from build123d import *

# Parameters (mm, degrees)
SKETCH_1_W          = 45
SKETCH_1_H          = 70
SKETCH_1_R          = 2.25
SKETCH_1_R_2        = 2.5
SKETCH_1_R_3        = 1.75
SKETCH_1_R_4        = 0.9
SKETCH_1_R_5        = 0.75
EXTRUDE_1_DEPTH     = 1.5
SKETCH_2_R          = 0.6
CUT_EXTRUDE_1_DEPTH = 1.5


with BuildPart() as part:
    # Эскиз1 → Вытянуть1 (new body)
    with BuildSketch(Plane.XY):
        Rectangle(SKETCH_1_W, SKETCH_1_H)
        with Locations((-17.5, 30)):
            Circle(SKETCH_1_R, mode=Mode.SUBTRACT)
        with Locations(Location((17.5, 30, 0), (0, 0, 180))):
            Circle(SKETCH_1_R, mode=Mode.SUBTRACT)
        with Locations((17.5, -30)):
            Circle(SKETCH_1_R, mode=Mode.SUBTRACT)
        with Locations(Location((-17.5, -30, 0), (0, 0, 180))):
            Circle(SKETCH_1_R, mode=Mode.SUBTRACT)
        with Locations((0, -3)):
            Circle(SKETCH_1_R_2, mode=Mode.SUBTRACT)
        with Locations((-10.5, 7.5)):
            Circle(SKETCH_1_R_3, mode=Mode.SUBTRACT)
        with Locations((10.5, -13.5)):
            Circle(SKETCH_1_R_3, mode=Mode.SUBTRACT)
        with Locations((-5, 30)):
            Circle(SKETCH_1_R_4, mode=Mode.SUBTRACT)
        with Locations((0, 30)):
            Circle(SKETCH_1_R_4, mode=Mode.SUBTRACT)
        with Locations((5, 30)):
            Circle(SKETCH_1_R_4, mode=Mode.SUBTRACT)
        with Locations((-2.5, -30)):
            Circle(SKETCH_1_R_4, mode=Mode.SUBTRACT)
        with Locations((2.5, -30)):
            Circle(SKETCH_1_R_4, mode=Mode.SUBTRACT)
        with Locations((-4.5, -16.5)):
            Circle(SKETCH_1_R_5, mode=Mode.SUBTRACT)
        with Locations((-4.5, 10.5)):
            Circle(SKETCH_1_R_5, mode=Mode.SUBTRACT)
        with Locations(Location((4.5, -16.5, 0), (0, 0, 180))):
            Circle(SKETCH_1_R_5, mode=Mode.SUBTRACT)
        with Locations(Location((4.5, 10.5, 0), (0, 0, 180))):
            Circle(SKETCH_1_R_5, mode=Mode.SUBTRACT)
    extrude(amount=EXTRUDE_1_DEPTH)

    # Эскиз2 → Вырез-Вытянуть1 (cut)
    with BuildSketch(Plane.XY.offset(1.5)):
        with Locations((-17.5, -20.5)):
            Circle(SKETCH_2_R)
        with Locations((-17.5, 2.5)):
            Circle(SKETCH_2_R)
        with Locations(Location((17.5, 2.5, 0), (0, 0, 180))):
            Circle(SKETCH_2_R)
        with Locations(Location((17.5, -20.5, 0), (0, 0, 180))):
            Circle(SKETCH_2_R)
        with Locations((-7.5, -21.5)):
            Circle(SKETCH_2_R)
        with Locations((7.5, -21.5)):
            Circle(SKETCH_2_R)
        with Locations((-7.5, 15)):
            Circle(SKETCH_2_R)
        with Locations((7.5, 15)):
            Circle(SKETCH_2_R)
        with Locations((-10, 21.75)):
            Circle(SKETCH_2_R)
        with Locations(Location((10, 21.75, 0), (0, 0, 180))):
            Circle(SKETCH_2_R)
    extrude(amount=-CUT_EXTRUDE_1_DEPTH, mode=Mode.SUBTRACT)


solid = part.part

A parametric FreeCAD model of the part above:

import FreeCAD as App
import Part
import Sketcher

V = App.Vector
Q = App.Units.Quantity


def add_polygon(sketch, points):
    """Adds a closed chain of lines whose ends are joined by coincident constraints."""
    first, n = sketch.GeometryCount, len(points)
    for a, b in zip(points, points[1:] + points[:1]):
        sketch.addGeometry(Part.LineSegment(App.Vector(*a, 0), App.Vector(*b, 0)), False)
    for i in range(n):
        sketch.addConstraint(Sketcher.Constraint("Coincident", first + i, 2, first + (i + 1) % n, 1))

doc = App.newDocument("Part")
body = doc.addObject("PartDesign::Body", "Body")

# Sketch on XY plane
sketch1 = doc.addObject("Sketcher::SketchObject", "Sketch")
body.addObject(sketch1)
sketch1.AttachmentSupport = (doc.XY_Plane, [""])
sketch1.MapMode = "FlatFace"
add_polygon(sketch1, [(-22.5, 35), (-22.5, -35), (22.5, -35), (22.5, 35)])  # lines 0-3
sketch1.addGeometry(Part.Circle(V(-17.5, -30, 0), V(0, 0, 1), 2.2), False)  # 4
sketch1.addGeometry(Part.Circle(V(-2.5, -30, 0), V(0, 0, 1), 0.9), False)  # 5
sketch1.addGeometry(Part.Circle(V(-4.5, -16.5, 0), V(0, 0, 1), 0.8), False)  # 6
sketch1.addGeometry(Part.Circle(V(2.5, -30, 0), V(0, 0, 1), 0.9), False)  # 7
sketch1.addGeometry(Part.Circle(V(4.5, -16.5, 0), V(0, 0, 1), 0.8), False)  # 8
sketch1.addGeometry(Part.Circle(V(17.5, -30, 0), V(0, 0, 1), 2.2), False)  # 9
sketch1.addGeometry(Part.Circle(V(0, -3, 0), V(0, 0, 1), 2.5), False)  # 10
sketch1.addGeometry(Part.Circle(V(10.5, -13.5, 0), V(0, 0, 1), 1.8), False)  # 11
sketch1.addGeometry(Part.Circle(V(-10.5, 7.5, 0), V(0, 0, 1), 1.8), False)  # 12
sketch1.addGeometry(Part.Circle(V(-4.5, 10.5, 0), V(0, 0, 1), 0.8), False)  # 13
sketch1.addGeometry(Part.Circle(V(-17.5, 30, 0), V(0, 0, 1), 2.2), False)  # 14
sketch1.addGeometry(Part.Circle(V(-5, 30, 0), V(0, 0, 1), 0.9), False)  # 15
sketch1.addGeometry(Part.Circle(V(4.5, 10.5, 0), V(0, 0, 1), 0.8), False)  # 16
sketch1.addGeometry(Part.Circle(V(0, 30, 0), V(0, 0, 1), 0.9), False)  # 17
sketch1.addGeometry(Part.Circle(V(5, 30, 0), V(0, 0, 1), 0.9), False)  # 18
sketch1.addGeometry(Part.Circle(V(17.5, 30, 0), V(0, 0, 1), 2.2), False)  # 19
sketch1.addConstraint(Sketcher.Constraint("Vertical", 0))
sketch1.addConstraint(Sketcher.Constraint("Horizontal", 1))
sketch1.addConstraint(Sketcher.Constraint("Vertical", 2))
sketch1.addConstraint(Sketcher.Constraint("Horizontal", 3))
sketch1.addConstraint(Sketcher.Constraint("Equal", 5, 7))
sketch1.addConstraint(Sketcher.Constraint("Equal", 6, 8))
sketch1.addConstraint(Sketcher.Constraint("Equal", 4, 9))
sketch1.addConstraint(Sketcher.Constraint("Equal", 11, 12))
sketch1.addConstraint(Sketcher.Constraint("Equal", 8, 13))
sketch1.addConstraint(Sketcher.Constraint("Equal", 9, 14))
sketch1.addConstraint(Sketcher.Constraint("Equal", 7, 15))
sketch1.addConstraint(Sketcher.Constraint("Equal", 13, 16))
sketch1.addConstraint(Sketcher.Constraint("Equal", 15, 17))
sketch1.addConstraint(Sketcher.Constraint("Equal", 17, 18))
sketch1.addConstraint(Sketcher.Constraint("Equal", 14, 19))
sketch1.addConstraint(Sketcher.Constraint("Symmetric", 9, 3, 14, 3, -1, 1))
sketch1.addConstraint(Sketcher.Constraint("Symmetric", 4, 3, 19, 3, -1, 1))
sketch1.addConstraint(Sketcher.Constraint("Symmetric", 0, 2, 2, 2, -1, 1))
sketch1.addConstraint(Sketcher.Constraint("Symmetric", 5, 3, 7, 3, -2))
sketch1.addConstraint(Sketcher.Constraint("Symmetric", 6, 3, 8, 3, -2))
sketch1.addConstraint(Sketcher.Constraint("Symmetric", 4, 3, 9, 3, -2))
sketch1.addConstraint(Sketcher.Constraint("Symmetric", 13, 3, 16, 3, -2))
sketch1.addConstraint(Sketcher.Constraint("Symmetric", 15, 3, 18, 3, -2))
sketch1.addConstraint(Sketcher.Constraint("PointOnObject", 10, 3, -2))
sketch1.addConstraint(Sketcher.Constraint("PointOnObject", 17, 3, -2))
sketch1.addConstraint(Sketcher.Constraint("Horizontal", 4, 3, 5, 3))
sketch1.addConstraint(Sketcher.Constraint("Horizontal", 14, 3, 15, 3))
sketch1.addConstraint(Sketcher.Constraint("Horizontal", 15, 3, 17, 3))
sketch1.addConstraint(Sketcher.Constraint("Vertical", 6, 3, 13, 3))
sketch1.addConstraint(Sketcher.Constraint("Diameter", 10, Q("5 mm")))
sketch1.addConstraint(Sketcher.Constraint("Diameter", 4, Q("4.5 mm")))
sketch1.addConstraint(Sketcher.Constraint("Diameter", 5, Q("1.8 mm")))
sketch1.addConstraint(Sketcher.Constraint("Diameter", 6, Q("1.5 mm")))
sketch1.addConstraint(Sketcher.Constraint("Diameter", 11, Q("3.5 mm")))
sketch1.addConstraint(Sketcher.Constraint("DistanceX", 1, 1, 1, 2, Q("45 mm")))
sketch1.addConstraint(Sketcher.Constraint("DistanceY", 0, 2, 0, 1, Q("70 mm")))
sketch1.addConstraint(Sketcher.Constraint("DistanceY", 4, 3, -1, 1, Q("30 mm")))
sketch1.addConstraint(Sketcher.Constraint("DistanceY", 10, 3, -1, 1, Q("3 mm")))
sketch1.addConstraint(Sketcher.Constraint("DistanceX", 15, 3, -1, 1, Q("5 mm")))
sketch1.addConstraint(Sketcher.Constraint("DistanceX", 4, 3, 5, 3, Q("15 mm")))
sketch1.addConstraint(Sketcher.Constraint("DistanceX", 6, 3, 5, 3, Q("2 mm")))
sketch1.addConstraint(Sketcher.Constraint("DistanceX", 5, 3, 7, 3, Q("5 mm")))
sketch1.addConstraint(Sketcher.Constraint("DistanceX", 8, 3, 11, 3, Q("6 mm")))
sketch1.addConstraint(Sketcher.Constraint("DistanceY", 8, 3, 11, 3, Q("3 mm")))
sketch1.addConstraint(Sketcher.Constraint("DistanceX", 12, 3, 6, 3, Q("6 mm")))
sketch1.addConstraint(Sketcher.Constraint("DistanceY", 6, 3, 12, 3, Q("24 mm")))
sketch1.addConstraint(Sketcher.Constraint("DistanceY", 12, 3, 13, 3, Q("3 mm")))
sketch1.addConstraint(Sketcher.Constraint("DistanceY", 6, 3, -1, 1, Q("16.5 mm")))
pad1 = doc.addObject("PartDesign::Pad", "Pad")
body.addObject(pad1)
pad1.Profile = sketch1
pad1.Length = 1.5

# Sketch on XY plane
sketch2 = doc.addObject("Sketcher::SketchObject", "Sketch001")
body.addObject(sketch2)
sketch2.AttachmentSupport = (doc.XY_Plane, [""])
sketch2.MapMode = "FlatFace"
sketch2.AttachmentOffset = App.Placement(V(0, 0, 1.5), App.Rotation())
sketch2.addGeometry(Part.Circle(V(-17.5, -20.5, 0), V(0, 0, 1), 0.6), False)
sketch2.addGeometry(Part.Circle(V(-17.5, 2.5, 0), V(0, 0, 1), 0.6), False)
sketch2.addGeometry(Part.Circle(V(17.5, 2.5, 0), V(0, 0, 1), 0.6), False)
sketch2.addGeometry(Part.Circle(V(17.5, -20.5, 0), V(0, 0, 1), 0.6), False)
sketch2.addGeometry(Part.Circle(V(-7.5, -21.5, 0), V(0, 0, 1), 0.6), False)
sketch2.addGeometry(Part.Circle(V(7.5, -21.5, 0), V(0, 0, 1), 0.6), False)
sketch2.addGeometry(Part.Circle(V(-7.5, 15, 0), V(0, 0, 1), 0.6), False)
sketch2.addGeometry(Part.Circle(V(7.5, 15, 0), V(0, 0, 1), 0.6), False)
sketch2.addGeometry(Part.Circle(V(-10, 21.8, 0), V(0, 0, 1), 0.6), False)
sketch2.addGeometry(Part.Circle(V(10, 21.8, 0), V(0, 0, 1), 0.6), False)
sketch2.addConstraint(Sketcher.Constraint("Equal", 0, 1))
sketch2.addConstraint(Sketcher.Constraint("Equal", 1, 2))
sketch2.addConstraint(Sketcher.Constraint("Equal", 2, 3))
sketch2.addConstraint(Sketcher.Constraint("Equal", 3, 4))
sketch2.addConstraint(Sketcher.Constraint("Equal", 4, 5))
sketch2.addConstraint(Sketcher.Constraint("Equal", 5, 6))
sketch2.addConstraint(Sketcher.Constraint("Equal", 6, 7))
sketch2.addConstraint(Sketcher.Constraint("Equal", 7, 8))
sketch2.addConstraint(Sketcher.Constraint("Equal", 8, 9))
sketch2.addConstraint(Sketcher.Constraint("Symmetric", 1, 3, 2, 3, -2))
sketch2.addConstraint(Sketcher.Constraint("Symmetric", 0, 3, 3, 3, -2))
sketch2.addConstraint(Sketcher.Constraint("Symmetric", 4, 3, 5, 3, -2))
sketch2.addConstraint(Sketcher.Constraint("Symmetric", 6, 3, 7, 3, -2))
sketch2.addConstraint(Sketcher.Constraint("Symmetric", 8, 3, 9, 3, -2))
sketch2.addConstraint(Sketcher.Constraint("Vertical", 0, 3, 1, 3))
sketch2.addConstraint(Sketcher.Constraint("Vertical", 4, 3, 6, 3))
sketch2.addConstraint(Sketcher.Constraint("Diameter", 0, Q("1.2 mm")))
sketch2.addConstraint(Sketcher.Constraint("DistanceY", -1, 1, 6, 3, Q("15 mm")))
sketch2.addConstraint(Sketcher.Constraint("DistanceX", 8, 3, -1, 1, Q("10 mm")))
sketch2.addConstraint(Sketcher.Constraint("DistanceY", 0, 3, 1, 3, Q("23 mm")))
sketch2.addConstraint(Sketcher.Constraint("DistanceX", 1, 3, 2, 3, Q("35 mm")))
sketch2.addConstraint(Sketcher.Constraint("DistanceX", 0, 3, 4, 3, Q("10 mm")))
sketch2.addConstraint(Sketcher.Constraint("DistanceY", 4, 3, 0, 3, Q("1 mm")))
sketch2.addConstraint(Sketcher.Constraint("DistanceY", 0, 3, -1, 1, Q("20.5 mm")))
sketch2.addConstraint(Sketcher.Constraint("DistanceY", -1, 1, 8, 3, Q("21.75 mm")))
pocket1 = doc.addObject("PartDesign::Pocket", "Pocket")
body.addObject(pocket1)
pocket1.Profile = sketch2
pocket1.Length = 1.5

doc.recompute()
